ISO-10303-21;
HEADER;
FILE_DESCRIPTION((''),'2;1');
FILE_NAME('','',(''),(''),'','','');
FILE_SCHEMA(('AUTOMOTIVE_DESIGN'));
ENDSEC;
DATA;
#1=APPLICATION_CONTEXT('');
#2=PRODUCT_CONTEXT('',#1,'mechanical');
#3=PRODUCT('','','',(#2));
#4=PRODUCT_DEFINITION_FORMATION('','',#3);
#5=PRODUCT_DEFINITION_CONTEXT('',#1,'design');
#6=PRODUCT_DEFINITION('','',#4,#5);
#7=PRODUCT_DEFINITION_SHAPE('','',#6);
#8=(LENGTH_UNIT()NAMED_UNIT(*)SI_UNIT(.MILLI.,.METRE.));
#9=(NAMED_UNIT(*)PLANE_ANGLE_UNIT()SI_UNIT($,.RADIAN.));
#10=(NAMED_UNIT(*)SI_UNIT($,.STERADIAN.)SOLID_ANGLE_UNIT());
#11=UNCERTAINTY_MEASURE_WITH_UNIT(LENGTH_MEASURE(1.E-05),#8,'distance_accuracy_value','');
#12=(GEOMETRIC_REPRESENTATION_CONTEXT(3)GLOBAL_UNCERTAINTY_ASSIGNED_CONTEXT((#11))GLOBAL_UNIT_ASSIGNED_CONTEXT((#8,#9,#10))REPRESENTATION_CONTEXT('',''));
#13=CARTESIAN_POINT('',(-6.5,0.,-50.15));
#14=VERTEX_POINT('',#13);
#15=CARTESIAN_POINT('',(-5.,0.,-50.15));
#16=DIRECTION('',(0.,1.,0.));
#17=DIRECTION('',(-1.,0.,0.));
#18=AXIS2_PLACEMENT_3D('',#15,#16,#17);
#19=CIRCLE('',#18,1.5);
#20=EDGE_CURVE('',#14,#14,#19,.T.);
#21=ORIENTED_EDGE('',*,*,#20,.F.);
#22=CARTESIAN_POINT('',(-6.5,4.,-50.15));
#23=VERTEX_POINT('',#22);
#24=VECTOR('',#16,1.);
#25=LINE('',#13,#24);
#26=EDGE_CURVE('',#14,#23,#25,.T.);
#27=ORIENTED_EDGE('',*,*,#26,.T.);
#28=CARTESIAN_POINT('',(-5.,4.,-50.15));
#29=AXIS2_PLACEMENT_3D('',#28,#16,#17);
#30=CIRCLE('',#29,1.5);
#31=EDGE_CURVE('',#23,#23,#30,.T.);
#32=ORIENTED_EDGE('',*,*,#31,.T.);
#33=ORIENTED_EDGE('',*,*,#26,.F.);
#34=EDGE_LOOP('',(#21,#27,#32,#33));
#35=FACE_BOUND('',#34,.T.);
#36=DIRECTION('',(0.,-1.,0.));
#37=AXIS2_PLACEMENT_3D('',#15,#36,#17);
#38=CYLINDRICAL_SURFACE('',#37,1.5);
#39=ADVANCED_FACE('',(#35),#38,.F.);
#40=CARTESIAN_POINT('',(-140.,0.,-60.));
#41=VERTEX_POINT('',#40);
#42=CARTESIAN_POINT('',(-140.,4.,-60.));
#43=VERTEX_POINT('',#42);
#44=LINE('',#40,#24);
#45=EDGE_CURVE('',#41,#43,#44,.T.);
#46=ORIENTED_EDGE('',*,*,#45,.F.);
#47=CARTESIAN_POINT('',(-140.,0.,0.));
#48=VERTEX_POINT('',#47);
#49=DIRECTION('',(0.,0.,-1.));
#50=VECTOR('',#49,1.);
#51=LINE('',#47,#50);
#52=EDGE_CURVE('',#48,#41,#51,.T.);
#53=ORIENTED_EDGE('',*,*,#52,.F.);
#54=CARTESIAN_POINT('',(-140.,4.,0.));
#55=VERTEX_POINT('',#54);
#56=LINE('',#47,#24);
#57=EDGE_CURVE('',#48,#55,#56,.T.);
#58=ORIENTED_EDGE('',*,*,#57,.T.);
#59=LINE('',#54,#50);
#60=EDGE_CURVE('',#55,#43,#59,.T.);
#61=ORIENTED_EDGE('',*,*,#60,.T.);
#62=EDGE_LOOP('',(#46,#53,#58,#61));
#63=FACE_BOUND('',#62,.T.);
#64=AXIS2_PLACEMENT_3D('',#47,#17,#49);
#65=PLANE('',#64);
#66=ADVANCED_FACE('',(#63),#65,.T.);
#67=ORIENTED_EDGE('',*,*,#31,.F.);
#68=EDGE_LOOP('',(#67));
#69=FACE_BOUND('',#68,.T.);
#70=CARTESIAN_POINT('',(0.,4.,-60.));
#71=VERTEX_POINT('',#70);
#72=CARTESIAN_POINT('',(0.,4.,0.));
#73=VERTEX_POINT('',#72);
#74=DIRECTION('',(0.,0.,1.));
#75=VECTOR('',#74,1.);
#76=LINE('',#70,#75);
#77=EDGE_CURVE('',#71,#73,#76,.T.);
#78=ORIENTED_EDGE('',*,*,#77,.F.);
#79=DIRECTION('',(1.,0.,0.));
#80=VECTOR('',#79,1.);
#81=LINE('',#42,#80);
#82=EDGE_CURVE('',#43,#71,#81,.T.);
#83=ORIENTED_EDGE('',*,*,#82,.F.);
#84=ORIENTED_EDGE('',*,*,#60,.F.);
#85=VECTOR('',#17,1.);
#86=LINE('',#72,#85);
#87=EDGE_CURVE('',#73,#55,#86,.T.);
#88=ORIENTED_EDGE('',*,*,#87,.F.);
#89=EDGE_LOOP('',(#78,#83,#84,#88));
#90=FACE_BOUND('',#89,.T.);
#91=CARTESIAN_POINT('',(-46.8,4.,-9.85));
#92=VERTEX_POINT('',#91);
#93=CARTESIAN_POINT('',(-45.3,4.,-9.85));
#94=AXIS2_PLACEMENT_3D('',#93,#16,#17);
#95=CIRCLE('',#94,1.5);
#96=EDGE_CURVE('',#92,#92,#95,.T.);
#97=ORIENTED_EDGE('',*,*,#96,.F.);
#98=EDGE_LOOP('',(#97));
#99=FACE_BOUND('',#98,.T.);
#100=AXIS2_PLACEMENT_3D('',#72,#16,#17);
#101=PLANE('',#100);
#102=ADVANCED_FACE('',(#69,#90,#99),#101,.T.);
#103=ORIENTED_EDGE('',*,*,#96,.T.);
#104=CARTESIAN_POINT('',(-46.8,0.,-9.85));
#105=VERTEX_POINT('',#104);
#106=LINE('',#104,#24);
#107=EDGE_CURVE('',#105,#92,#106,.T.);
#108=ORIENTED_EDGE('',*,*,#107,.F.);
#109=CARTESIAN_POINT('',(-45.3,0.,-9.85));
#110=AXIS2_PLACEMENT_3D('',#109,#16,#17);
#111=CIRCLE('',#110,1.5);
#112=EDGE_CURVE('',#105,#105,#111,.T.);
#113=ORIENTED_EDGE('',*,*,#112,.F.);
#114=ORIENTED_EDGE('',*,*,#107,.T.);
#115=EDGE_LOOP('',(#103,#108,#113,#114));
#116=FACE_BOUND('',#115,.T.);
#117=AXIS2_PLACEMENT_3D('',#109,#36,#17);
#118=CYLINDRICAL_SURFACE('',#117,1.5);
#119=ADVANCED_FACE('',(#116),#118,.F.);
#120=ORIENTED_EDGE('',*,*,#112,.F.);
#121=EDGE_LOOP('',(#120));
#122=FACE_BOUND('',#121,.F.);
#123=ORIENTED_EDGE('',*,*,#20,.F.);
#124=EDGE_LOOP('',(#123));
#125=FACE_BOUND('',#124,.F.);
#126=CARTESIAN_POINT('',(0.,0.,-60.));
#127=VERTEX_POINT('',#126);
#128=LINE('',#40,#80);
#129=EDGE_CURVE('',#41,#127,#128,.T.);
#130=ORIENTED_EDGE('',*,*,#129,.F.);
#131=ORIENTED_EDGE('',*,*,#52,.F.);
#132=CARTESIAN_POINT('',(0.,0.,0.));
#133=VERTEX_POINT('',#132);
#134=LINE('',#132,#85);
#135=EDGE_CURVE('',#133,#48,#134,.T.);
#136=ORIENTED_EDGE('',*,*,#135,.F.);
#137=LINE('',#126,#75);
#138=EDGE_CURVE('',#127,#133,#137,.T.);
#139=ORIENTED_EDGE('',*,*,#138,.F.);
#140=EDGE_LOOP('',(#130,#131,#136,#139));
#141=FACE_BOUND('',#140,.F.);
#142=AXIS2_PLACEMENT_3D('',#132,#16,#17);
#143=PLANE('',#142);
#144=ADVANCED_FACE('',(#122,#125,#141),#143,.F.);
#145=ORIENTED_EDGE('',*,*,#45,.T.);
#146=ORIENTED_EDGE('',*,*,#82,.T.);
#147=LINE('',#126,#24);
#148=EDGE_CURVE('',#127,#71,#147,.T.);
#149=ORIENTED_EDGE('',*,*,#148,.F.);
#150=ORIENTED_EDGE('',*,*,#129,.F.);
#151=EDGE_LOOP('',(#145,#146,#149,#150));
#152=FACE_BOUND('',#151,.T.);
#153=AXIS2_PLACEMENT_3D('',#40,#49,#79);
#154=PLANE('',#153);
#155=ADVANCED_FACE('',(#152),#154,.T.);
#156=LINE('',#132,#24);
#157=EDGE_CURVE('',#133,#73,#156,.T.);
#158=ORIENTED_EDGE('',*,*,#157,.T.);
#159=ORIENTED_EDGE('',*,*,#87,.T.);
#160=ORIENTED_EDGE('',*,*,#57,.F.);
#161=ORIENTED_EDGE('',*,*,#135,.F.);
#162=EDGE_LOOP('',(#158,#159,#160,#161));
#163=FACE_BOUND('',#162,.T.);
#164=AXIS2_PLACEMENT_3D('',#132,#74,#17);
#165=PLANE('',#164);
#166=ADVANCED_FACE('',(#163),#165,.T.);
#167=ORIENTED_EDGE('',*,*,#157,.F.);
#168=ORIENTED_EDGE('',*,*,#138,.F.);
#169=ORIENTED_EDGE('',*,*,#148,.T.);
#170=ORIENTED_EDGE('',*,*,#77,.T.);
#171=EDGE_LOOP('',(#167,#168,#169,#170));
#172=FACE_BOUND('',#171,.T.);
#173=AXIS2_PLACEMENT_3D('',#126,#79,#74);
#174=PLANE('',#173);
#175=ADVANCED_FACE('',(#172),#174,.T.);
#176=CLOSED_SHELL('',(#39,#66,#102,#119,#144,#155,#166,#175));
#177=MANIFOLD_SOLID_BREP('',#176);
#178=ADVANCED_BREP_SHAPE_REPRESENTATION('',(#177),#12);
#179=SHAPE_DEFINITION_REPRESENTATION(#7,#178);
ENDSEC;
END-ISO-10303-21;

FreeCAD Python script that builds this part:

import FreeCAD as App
import Part
import Sketcher

V = App.Vector


def add_polygon(sketch, points):
    """Adds a closed chain of lines whose ends are joined by coincident constraints."""
    first, n = sketch.GeometryCount, len(points)
    for a, b in zip(points, points[1:] + points[:1]):
        sketch.addGeometry(Part.LineSegment(App.Vector(*a, 0), App.Vector(*b, 0)), False)
    for i in range(n):
        sketch.addConstraint(Sketcher.Constraint("Coincident", first + i, 2, first + (i + 1) % n, 1))

doc = App.newDocument("Part")
body = doc.addObject("PartDesign::Body", "Body")

# Sketch on XZ plane
sketch1 = doc.addObject("Sketcher::SketchObject", "Sketch")
body.addObject(sketch1)
sketch1.AttachmentSupport = (doc.XZ_Plane, [""])
sketch1.MapMode = "FlatFace"
add_polygon(sketch1, [(-140, 0), (0, 0), (0, -60), (-140, -60)])  # lines 0-3
sketch1.addGeometry(Part.Circle(V(-5, -50.1, 0), V(0, 0, 1), 1.5), False)  # 4
sketch1.addGeometry(Part.Circle(V(-45.3, -9.8, 0), V(0, 0, 1), 1.5), False)  # 5
sketch1.addConstraint([
    Sketcher.Constraint("Horizontal", 0),
    Sketcher.Constraint("Vertical", 1),
    Sketcher.Constraint("Horizontal", 2),
    Sketcher.Constraint("Vertical", 3),
    Sketcher.Constraint("Coincident", 0, 2, -1, 1),
    Sketcher.Constraint("Equal", 4, 5),
    Sketcher.Constraint("Diameter", 4, 3.0),
    Sketcher.Constraint("DistanceX", 0, 1, 0, 2, 140.0),
    Sketcher.Constraint("DistanceY", 1, 2, 1, 1, 60.0),
    Sketcher.Constraint("DistanceX", 4, 3, -1, 1, 5.0),
    Sketcher.Constraint("DistanceX", 5, 3, -1, 1, 45.3),
    Sketcher.Constraint("DistanceY", 5, 3, -1, 1, 9.85),
    Sketcher.Constraint("DistanceY", 1, 2, 4, 3, 9.85),
])
pad1 = doc.addObject("PartDesign::Pad", "Pad")
body.addObject(pad1)
pad1.Profile = sketch1
pad1.Length = 4
pad1.Reversed = True

doc.recompute()
